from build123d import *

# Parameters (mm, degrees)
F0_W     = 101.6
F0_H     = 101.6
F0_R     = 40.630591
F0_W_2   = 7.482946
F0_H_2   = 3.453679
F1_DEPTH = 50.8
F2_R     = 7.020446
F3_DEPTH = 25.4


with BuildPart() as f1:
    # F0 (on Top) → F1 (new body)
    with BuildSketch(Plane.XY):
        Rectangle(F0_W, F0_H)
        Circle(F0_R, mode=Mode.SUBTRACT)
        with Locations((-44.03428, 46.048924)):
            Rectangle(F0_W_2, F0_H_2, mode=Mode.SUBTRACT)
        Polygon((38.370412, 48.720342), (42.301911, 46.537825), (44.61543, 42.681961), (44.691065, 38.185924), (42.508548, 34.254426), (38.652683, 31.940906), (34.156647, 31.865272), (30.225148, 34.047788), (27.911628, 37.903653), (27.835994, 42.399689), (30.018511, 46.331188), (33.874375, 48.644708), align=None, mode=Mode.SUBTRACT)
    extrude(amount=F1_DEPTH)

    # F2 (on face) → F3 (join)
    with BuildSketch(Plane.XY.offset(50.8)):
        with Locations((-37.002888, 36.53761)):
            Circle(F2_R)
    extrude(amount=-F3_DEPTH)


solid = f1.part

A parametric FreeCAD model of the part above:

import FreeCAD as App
import Part
import Sketcher
from FreeCAD import Vector
Q = App.Units.Quantity

doc = App.newDocument("Part")
params = doc.addObject("Spreadsheet::Sheet", "Params")
for row, (alias, value) in enumerate([
    ("sketch1_width", "4 in"),
    ("sketch1_height", "4 in"),
    ("pad1_length", "2 in"),
    ("pad2_length", "1 in"),
], start=1):
    params.set(f"A{row}", alias)
    params.set(f"B{row}", "=" + value)
    params.setAlias(f"B{row}", alias)

body = doc.addObject("PartDesign::Body", "Body")

sketch1 = body.newObject("Sketcher::SketchObject", "Sketch")
sketch1.AttachmentSupport = (doc.getObject("XY_Plane"), [""])
sketch1.MapMode = "FlatFace"
sketch1.addGeometry([
    Part.LineSegment(Vector(-50.8, 50.8, 0), Vector(-50.8, -50.8, 0)),
    Part.LineSegment(Vector(-50.8, -50.8, 0), Vector(50.8, -50.8, 0)),
    Part.LineSegment(Vector(50.8, -50.8, 0), Vector(50.8, 50.8, 0)),
    Part.LineSegment(Vector(50.8, 50.8, 0), Vector(-50.8, 50.8, 0)),
    Part.Circle(Vector(0, 0, 0), Vector(0, 0, 1), 40.630591),
    Part.LineSegment(Vector(-40.292807, 44.322085, 0), Vector(-47.775753, 44.322085, 0)),
    Part.LineSegment(Vector(-47.775753, 44.322085, 0), Vector(-47.775753, 47.775763, 0)),
    Part.LineSegment(Vector(-47.775753, 47.775763, 0), Vector(-40.292807, 47.775763, 0)),
    Part.LineSegment(Vector(-40.292807, 47.775763, 0), Vector(-40.292807, 44.322085, 0)),
    Part.LineSegment(Vector(33.874375, 48.644708, 0), Vector(38.370412, 48.720342, 0)),
    Part.LineSegment(Vector(38.370412, 48.720342, 0), Vector(42.301911, 46.537825, 0)),
    Part.LineSegment(Vector(42.301911, 46.537825, 0), Vector(44.61543, 42.681961, 0)),
    Part.LineSegment(Vector(44.61543, 42.681961, 0), Vector(44.691065, 38.185924, 0)),
    Part.LineSegment(Vector(44.691065, 38.185924, 0), Vector(42.508548, 34.254426, 0)),
    Part.LineSegment(Vector(42.508548, 34.254426, 0), Vector(38.652683, 31.940906, 0)),
    Part.LineSegment(Vector(38.652683, 31.940906, 0), Vector(34.156647, 31.865272, 0)),
    Part.LineSegment(Vector(34.156647, 31.865272, 0), Vector(30.225148, 34.047788, 0)),
    Part.LineSegment(Vector(30.225148, 34.047788, 0), Vector(27.911628, 37.903653, 0)),
    Part.LineSegment(Vector(27.911628, 37.903653, 0), Vector(27.835994, 42.399689, 0)),
    Part.LineSegment(Vector(27.835994, 42.399689, 0), Vector(30.018511, 46.331188, 0)),
    Part.LineSegment(Vector(30.018511, 46.331188, 0), Vector(33.874375, 48.644708, 0)),
], False)
sketch1.addConstraint([
    Sketcher.Constraint("Coincident", 0, 2, 1, 1),
    Sketcher.Constraint("Coincident", 1, 2, 2, 1),
    Sketcher.Constraint("Coincident", 2, 2, 3, 1),
    Sketcher.Constraint("Coincident", 3, 2, 0, 1),
    Sketcher.Constraint("Coincident", 5, 2, 6, 1),
    Sketcher.Constraint("Coincident", 6, 2, 7, 1),
    Sketcher.Constraint("Coincident", 7, 2, 8, 1),
    Sketcher.Constraint("Coincident", 8, 2, 5, 1),
    Sketcher.Constraint("Coincident", 9, 2, 10, 1),
    Sketcher.Constraint("Coincident", 10, 2, 11, 1),
    Sketcher.Constraint("Coincident", 11, 2, 12, 1),
    Sketcher.Constraint("Coincident", 12, 2, 13, 1),
    Sketcher.Constraint("Coincident", 13, 2, 14, 1),
    Sketcher.Constraint("Coincident", 14, 2, 15, 1),
    Sketcher.Constraint("Coincident", 15, 2, 16, 1),
    Sketcher.Constraint("Coincident", 16, 2, 17, 1),
    Sketcher.Constraint("Coincident", 17, 2, 18, 1),
    Sketcher.Constraint("Coincident", 18, 2, 19, 1),
    Sketcher.Constraint("Coincident", 19, 2, 20, 1),
    Sketcher.Constraint("Coincident", 20, 2, 9, 1),
    Sketcher.Constraint("Vertical", 0),
    Sketcher.Constraint("Horizontal", 1),
    Sketcher.Constraint("Vertical", 2),
    Sketcher.Constraint("Horizontal", 3),
    Sketcher.Constraint("Horizontal", 5),
    Sketcher.Constraint("Vertical", 6),
    Sketcher.Constraint("Horizontal", 7),
    Sketcher.Constraint("Vertical", 8),
    Sketcher.Constraint("Coincident", 4, 3, -1, 1),
    Sketcher.Constraint("DistanceX", 1, 1, 1, 2, Q("4 in")),
    Sketcher.Constraint("DistanceY", 0, 2, 0, 1, Q("4 in")),
    Sketcher.Constraint("DistanceX", 0, 2, -1, 1, Q("2 in")),
    Sketcher.Constraint("DistanceY", 0, 2, -1, 1, Q("2 in")),
    Sketcher.Constraint("Diameter", 4, Q("81.261182 mm")),
    Sketcher.Constraint("DistanceY", 6, 1, 6, 2, Q("3.453679 mm")),
    Sketcher.Constraint("DistanceX", 9, 2, 10, 2, Q("3.931499 mm")),
    Sketcher.Constraint("DistanceY", 12, 2, 10, 2, Q("8.351901 mm")),
    Sketcher.Constraint("DistanceY", 13, 2, 10, 2, Q("12.283399 mm")),
    Sketcher.Constraint("DistanceX", 15, 2, 13, 2, Q("8.351901 mm")),
    Sketcher.Constraint("DistanceX", 16, 2, 15, 2, Q("3.931499 mm")),
    Sketcher.Constraint("DistanceY", 16, 2, 18, 2, Q("8.351901 mm")),
    Sketcher.Constraint("DistanceY", 18, 2, 19, 2, Q("3.931499 mm")),
    Sketcher.Constraint("DistanceX", 19, 2, 9, 2, Q("8.351901 mm")),
    Sketcher.Constraint("Distance", 11, Q("4.496672 mm")),
    Sketcher.Constraint("Distance", 13, Q("4.496672 mm")),
    Sketcher.Constraint("DistanceX", 5, 2, 5, 1, Q("7.482946 mm")),
    Sketcher.Constraint("DistanceX", -1, 1, 10, 2, Q("42.301911 mm")),
    Sketcher.Constraint("DistanceX", -1, 1, 11, 2, Q("44.61543 mm")),
    Sketcher.Constraint("DistanceY", -1, 1, 11, 2, Q("42.681961 mm")),
    Sketcher.Constraint("DistanceX", -1, 1, 16, 2, Q("30.225148 mm")),
    Sketcher.Constraint("DistanceX", -1, 1, 17, 2, Q("27.911628 mm")),
    Sketcher.Constraint("DistanceY", -1, 1, 18, 2, Q("42.399689 mm")),
    Sketcher.Constraint("DistanceX", 7, 2, 9, 2, Q("78.663219 mm")),
    Sketcher.Constraint("DistanceY", 7, 2, 9, 2, Q("0.944579 mm")),
    Sketcher.Constraint("DistanceY", 10, 2, 7, 2, Q("1.237938 mm")),
    Sketcher.Constraint("DistanceY", 14, 2, 13, 2, Q("2.31352 mm")),
    Sketcher.Constraint("DistanceX", 14, 2, 12, 2, Q("6.038382 mm")),
    Sketcher.Constraint("DistanceY", 15, 2, 12, 2, Q("6.320652 mm")),
    Sketcher.Constraint("DistanceY", 15, 2, 17, 2, Q("6.038381 mm")),
    Sketcher.Constraint("DistanceX", 18, 2, 9, 2, Q("10.534418 mm")),
    Sketcher.Constraint("DistanceY", 19, 2, 20, 2, Q("2.31352 mm")),
    Sketcher.Constraint("DistanceX", 18, 2, 20, 2, Q("6.038381 mm")),
])
sketch1.setExpression("Constraints[29]", "Params.sketch1_width")
sketch1.setExpression("Constraints[30]", "Params.sketch1_height")
pad1 = body.newObject("PartDesign::Pad", "Pad")
pad1.Profile = sketch1
pad1.setExpression("Length", "Params.pad1_length")

sketch2 = body.newObject("Sketcher::SketchObject", "Sketch001")
sketch2.AttachmentSupport = (doc.getObject("XY_Plane"), [""])
sketch2.MapMode = "FlatFace"
sketch2.AttachmentOffset = App.Placement(Vector(0, 0, 2 * 25.4), App.Rotation())
sketch2.addGeometry(Part.Circle(Vector(-37, 37, 0), Vector(0, 0, 1), 7), False)
sketch2.addConstraint([
    Sketcher.Constraint("Diameter", 0, Q("14.040892 mm")),
    Sketcher.Constraint("DistanceY", -1, 1, 0, 3, Q("36.53761 mm")),
    Sketcher.Constraint("DistanceX", 0, 3, -1, 1, Q("37.002888 mm")),
])
pad2 = body.newObject("PartDesign::Pad", "Pad001")
pad2.Profile = sketch2
pad2.setExpression("Length", "Params.pad2_length")
pad2.Reversed = True

doc.recompute()
